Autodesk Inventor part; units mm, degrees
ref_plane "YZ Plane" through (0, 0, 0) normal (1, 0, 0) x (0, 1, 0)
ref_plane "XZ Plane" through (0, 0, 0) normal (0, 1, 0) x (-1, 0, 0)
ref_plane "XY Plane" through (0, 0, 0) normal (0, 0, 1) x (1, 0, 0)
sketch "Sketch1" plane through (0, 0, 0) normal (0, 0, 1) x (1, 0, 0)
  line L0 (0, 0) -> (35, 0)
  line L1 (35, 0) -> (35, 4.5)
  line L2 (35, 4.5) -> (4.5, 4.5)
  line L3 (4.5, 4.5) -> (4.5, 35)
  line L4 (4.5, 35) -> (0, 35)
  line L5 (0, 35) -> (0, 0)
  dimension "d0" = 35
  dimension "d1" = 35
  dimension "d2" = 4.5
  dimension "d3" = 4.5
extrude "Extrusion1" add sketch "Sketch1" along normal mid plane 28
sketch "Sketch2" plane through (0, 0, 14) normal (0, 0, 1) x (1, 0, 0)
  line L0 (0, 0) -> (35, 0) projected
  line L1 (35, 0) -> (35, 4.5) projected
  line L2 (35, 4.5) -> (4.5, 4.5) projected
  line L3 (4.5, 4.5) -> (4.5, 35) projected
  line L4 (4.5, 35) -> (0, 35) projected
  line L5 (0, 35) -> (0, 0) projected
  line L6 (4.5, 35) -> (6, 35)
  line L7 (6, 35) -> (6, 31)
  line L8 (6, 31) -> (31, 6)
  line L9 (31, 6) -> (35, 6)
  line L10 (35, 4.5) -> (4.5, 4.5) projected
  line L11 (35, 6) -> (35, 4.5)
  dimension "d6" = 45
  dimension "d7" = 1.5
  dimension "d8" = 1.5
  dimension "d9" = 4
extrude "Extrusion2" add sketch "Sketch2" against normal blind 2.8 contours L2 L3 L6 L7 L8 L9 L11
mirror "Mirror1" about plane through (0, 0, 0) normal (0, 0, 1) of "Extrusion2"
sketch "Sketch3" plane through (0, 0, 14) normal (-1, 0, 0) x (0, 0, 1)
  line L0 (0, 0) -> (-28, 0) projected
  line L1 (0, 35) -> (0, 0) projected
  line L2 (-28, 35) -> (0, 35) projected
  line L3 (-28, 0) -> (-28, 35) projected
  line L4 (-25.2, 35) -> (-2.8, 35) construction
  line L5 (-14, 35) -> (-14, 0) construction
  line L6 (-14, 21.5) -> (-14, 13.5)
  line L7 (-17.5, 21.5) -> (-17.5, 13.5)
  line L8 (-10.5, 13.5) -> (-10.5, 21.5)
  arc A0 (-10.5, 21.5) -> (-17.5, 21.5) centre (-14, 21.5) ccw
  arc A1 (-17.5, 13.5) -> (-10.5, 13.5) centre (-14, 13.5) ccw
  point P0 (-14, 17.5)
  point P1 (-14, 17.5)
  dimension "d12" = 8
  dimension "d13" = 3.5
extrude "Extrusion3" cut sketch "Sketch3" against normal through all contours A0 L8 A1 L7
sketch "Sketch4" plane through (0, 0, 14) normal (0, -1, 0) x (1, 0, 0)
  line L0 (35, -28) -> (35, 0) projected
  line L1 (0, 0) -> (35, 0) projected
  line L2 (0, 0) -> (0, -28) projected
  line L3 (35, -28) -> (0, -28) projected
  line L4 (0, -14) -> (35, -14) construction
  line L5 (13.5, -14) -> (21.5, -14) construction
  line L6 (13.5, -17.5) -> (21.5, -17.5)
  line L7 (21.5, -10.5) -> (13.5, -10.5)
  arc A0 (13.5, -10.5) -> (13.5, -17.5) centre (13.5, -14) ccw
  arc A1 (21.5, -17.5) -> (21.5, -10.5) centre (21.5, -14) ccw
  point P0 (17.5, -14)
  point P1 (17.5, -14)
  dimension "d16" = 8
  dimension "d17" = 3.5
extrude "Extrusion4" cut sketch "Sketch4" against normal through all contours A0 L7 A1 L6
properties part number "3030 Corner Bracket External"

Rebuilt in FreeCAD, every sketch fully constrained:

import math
import FreeCAD as App
import Part
import Sketcher
from FreeCAD import Vector

doc = App.newDocument("Part")
body = doc.addObject("PartDesign::Body", "Body")

sketch1 = body.newObject("Sketcher::SketchObject", "Sketch")
sketch1.AttachmentSupport = (doc.getObject("XY_Plane"), [""])
sketch1.MapMode = "FlatFace"
sketch1.addGeometry(Part.LineSegment(Vector(0, 35, 0), Vector(0, 0, 0)), False)
sketch1.addGeometry(Part.LineSegment(Vector(0, 0, 0), Vector(35, 0, 0)), False)
sketch1.addGeometry(Part.LineSegment(Vector(35, 0, 0), Vector(35, 4.5, 0)), False)
sketch1.addGeometry(Part.LineSegment(Vector(35, 4.5, 0), Vector(4.5, 4.5, 0)), False)
sketch1.addGeometry(Part.LineSegment(Vector(4.5, 4.5, 0), Vector(4.5, 35, 0)), False)
sketch1.addGeometry(Part.LineSegment(Vector(4.5, 35, 0), Vector(0, 35, 0)), False)
sketch1.addConstraint(Sketcher.Constraint("Coincident", 0, 2, 1, 1))
sketch1.addConstraint(Sketcher.Constraint("Coincident", 1, 2, 2, 1))
sketch1.addConstraint(Sketcher.Constraint("Coincident", 2, 2, 3, 1))
sketch1.addConstraint(Sketcher.Constraint("Coincident", 3, 2, 4, 1))
sketch1.addConstraint(Sketcher.Constraint("Coincident", 4, 2, 5, 1))
sketch1.addConstraint(Sketcher.Constraint("Coincident", 5, 2, 0, 1))
sketch1.addConstraint(Sketcher.Constraint("Vertical", 0))
sketch1.addConstraint(Sketcher.Constraint("Horizontal", 1))
sketch1.addConstraint(Sketcher.Constraint("Vertical", 2))
sketch1.addConstraint(Sketcher.Constraint("Horizontal", 3))
sketch1.addConstraint(Sketcher.Constraint("Vertical", 4))
sketch1.addConstraint(Sketcher.Constraint("Horizontal", 5))
sketch1.addConstraint(Sketcher.Constraint("Coincident", 0, 2, -1, 1))
sketch1.addConstraint(Sketcher.Constraint("Equal", 1, 0))
sketch1.addConstraint(Sketcher.Constraint("Equal", 5, 2))
sketch1.addConstraint(Sketcher.Constraint("DistanceX", 1, 1, 1, 2, 35.0))
sketch1.addConstraint(Sketcher.Constraint("DistanceX", 5, 2, 5, 1, 4.5))
pad1 = body.newObject("PartDesign::Pad", "Pad")
pad1.Profile = sketch1
pad1.Length = 28
pad1.Midplane = True

sketch2 = body.newObject("Sketcher::SketchObject", "Sketch001")
sketch2.AttachmentSupport = (doc.getObject("XY_Plane"), [""])
sketch2.MapMode = "FlatFace"
sketch2.AttachmentOffset = App.Placement(Vector(0, 0, 14), App.Rotation())
sketch2.addGeometry(Part.LineSegment(Vector(4.5, 4.5, 0), Vector(35, 4.5, 0)), False)
sketch2.addGeometry(Part.LineSegment(Vector(35, 4.5, 0), Vector(35, 6, 0)), False)
sketch2.addGeometry(Part.LineSegment(Vector(35, 6, 0), Vector(31, 6, 0)), False)
sketch2.addGeometry(Part.LineSegment(Vector(31, 6, 0), Vector(6, 31, 0)), False)
sketch2.addGeometry(Part.LineSegment(Vector(6, 31, 0), Vector(6, 35, 0)), False)
sketch2.addGeometry(Part.LineSegment(Vector(6, 35, 0), Vector(4.5, 35, 0)), False)
sketch2.addGeometry(Part.LineSegment(Vector(4.5, 35, 0), Vector(4.5, 4.5, 0)), False)
sketch2.addConstraint(Sketcher.Constraint("Coincident", 0, 2, 1, 1))
sketch2.addConstraint(Sketcher.Constraint("Coincident", 1, 2, 2, 1))
sketch2.addConstraint(Sketcher.Constraint("Coincident", 2, 2, 3, 1))
sketch2.addConstraint(Sketcher.Constraint("Coincident", 3, 2, 4, 1))
sketch2.addConstraint(Sketcher.Constraint("Coincident", 4, 2, 5, 1))
sketch2.addConstraint(Sketcher.Constraint("Coincident", 5, 2, 6, 1))
sketch2.addConstraint(Sketcher.Constraint("Coincident", 6, 2, 0, 1))
sketch2.addConstraint(Sketcher.Constraint("Horizontal", 0))
sketch2.addConstraint(Sketcher.Constraint("Vertical", 1))
sketch2.addConstraint(Sketcher.Constraint("Horizontal", 2))
sketch2.addConstraint(Sketcher.Constraint("Vertical", 4))
sketch2.addConstraint(Sketcher.Constraint("Horizontal", 5))
sketch2.addConstraint(Sketcher.Constraint("Vertical", 6))
sketch2.addConstraint(Sketcher.Constraint("Equal", 5, 1))
sketch2.addConstraint(Sketcher.Constraint("Equal", 2, 4))
sketch2.addConstraint(Sketcher.Constraint("Equal", 0, 6))
sketch2.addConstraint(Sketcher.Constraint("DistanceX", 2, 2, 2, 1, 4.0))
sketch2.addConstraint(Sketcher.Constraint("DistanceX", 5, 2, 5, 1, 1.5))
sketch2.addConstraint(Sketcher.Constraint("DistanceX", 0, 1, 0, 2, 30.5))
sketch2.addConstraint(Sketcher.Constraint("DistanceX", -1, 1, 0, 2, 35.0))
sketch2.addConstraint(Sketcher.Constraint("DistanceY", -1, 1, 1, 2, 6.0))
pad2 = body.newObject("PartDesign::Pad", "Pad001")
pad2.Profile = sketch2
pad2.Length = 2.8
pad2.Reversed = True
doc.recompute()

mirrored = body.newObject("PartDesign::Mirrored", "Mirrored")
mirrored.Originals = [pad2]
mirrored.MirrorPlane = (doc.getObject("XY_Plane"), [""])
body.Tip = mirrored

sketch3 = body.newObject("Sketcher::SketchObject", "Sketch002")
sketch3.AttachmentSupport = (doc.getObject("YZ_Plane"), [""])
sketch3.MapMode = "FlatFace"
sketch3.addGeometry(Part.ArcOfCircle(Part.Circle(Vector(21.5, 0, 0), Vector(0, 0, 1), 3.5), math.radians(-90), math.radians(90)), False)
sketch3.addGeometry(Part.LineSegment(Vector(21.5, -3.5, 0), Vector(13.5, -3.5, 0)), False)
sketch3.addGeometry(Part.ArcOfCircle(Part.Circle(Vector(13.5, 0, 0), Vector(0, 0, 1), 3.5), math.radians(90), math.radians(270)), False)
sketch3.addGeometry(Part.LineSegment(Vector(13.5, 3.5, 0), Vector(21.5, 3.5, 0)), False)
sketch3.addConstraint(Sketcher.Constraint("Tangent", 0, 1, 1, 1))
sketch3.addConstraint(Sketcher.Constraint("Tangent", 1, 2, 2, 2))
sketch3.addConstraint(Sketcher.Constraint("Tangent", 2, 1, 3, 1))
sketch3.addConstraint(Sketcher.Constraint("Tangent", 3, 2, 0, 2))
sketch3.addConstraint(Sketcher.Constraint("Horizontal", 1))
sketch3.addConstraint(Sketcher.Constraint("Horizontal", 3))
sketch3.addConstraint(Sketcher.Constraint("PointOnObject", 0, 3, -1))
sketch3.addConstraint(Sketcher.Constraint("Radius", 0, 3.5))
sketch3.addConstraint(Sketcher.Constraint("DistanceX", 1, 2, 1, 1, 8.0))
sketch3.addConstraint(Sketcher.Constraint("DistanceX", -1, 1, 0, 3, 21.5))
pocket1 = body.newObject("PartDesign::Pocket", "Pocket")
pocket1.Profile = sketch3
pocket1.Type = "ThroughAll"
pocket1.Reversed = True

sketch4 = body.newObject("Sketcher::SketchObject", "Sketch003")
sketch4.AttachmentSupport = (doc.getObject("XZ_Plane"), [""])
sketch4.MapMode = "FlatFace"
sketch4.addGeometry(Part.ArcOfCircle(Part.Circle(Vector(13.5, 0, 0), Vector(0, 0, 1), 3.5), math.radians(90), math.radians(270)), False)
sketch4.addGeometry(Part.LineSegment(Vector(13.5, -3.5, 0), Vector(21.5, -3.5, 0)), False)
sketch4.addGeometry(Part.ArcOfCircle(Part.Circle(Vector(21.5, 0, 0), Vector(0, 0, 1), 3.5), math.radians(-90), math.radians(90)), False)
sketch4.addGeometry(Part.LineSegment(Vector(21.5, 3.5, 0), Vector(13.5, 3.5, 0)), False)
sketch4.addConstraint(Sketcher.Constraint("Tangent", 0, 2, 1, 1))
sketch4.addConstraint(Sketcher.Constraint("Tangent", 1, 2, 2, 1))
sketch4.addConstraint(Sketcher.Constraint("Tangent", 2, 2, 3, 1))
sketch4.addConstraint(Sketcher.Constraint("Tangent", 3, 2, 0, 1))
sketch4.addConstraint(Sketcher.Constraint("Horizontal", 1))
sketch4.addConstraint(Sketcher.Constraint("Horizontal", 3))
sketch4.addConstraint(Sketcher.Constraint("PointOnObject", 0, 3, -1))
sketch4.addConstraint(Sketcher.Constraint("Radius", 0, 3.5))
sketch4.addConstraint(Sketcher.Constraint("DistanceX", 1, 1, 1, 2, 8.0))
sketch4.addConstraint(Sketcher.Constraint("DistanceX", -1, 1, 0, 3, 13.5))
pocket2 = body.newObject("PartDesign::Pocket", "Pocket001")
pocket2.Profile = sketch4
pocket2.Type = "ThroughAll"

doc.recompute()
